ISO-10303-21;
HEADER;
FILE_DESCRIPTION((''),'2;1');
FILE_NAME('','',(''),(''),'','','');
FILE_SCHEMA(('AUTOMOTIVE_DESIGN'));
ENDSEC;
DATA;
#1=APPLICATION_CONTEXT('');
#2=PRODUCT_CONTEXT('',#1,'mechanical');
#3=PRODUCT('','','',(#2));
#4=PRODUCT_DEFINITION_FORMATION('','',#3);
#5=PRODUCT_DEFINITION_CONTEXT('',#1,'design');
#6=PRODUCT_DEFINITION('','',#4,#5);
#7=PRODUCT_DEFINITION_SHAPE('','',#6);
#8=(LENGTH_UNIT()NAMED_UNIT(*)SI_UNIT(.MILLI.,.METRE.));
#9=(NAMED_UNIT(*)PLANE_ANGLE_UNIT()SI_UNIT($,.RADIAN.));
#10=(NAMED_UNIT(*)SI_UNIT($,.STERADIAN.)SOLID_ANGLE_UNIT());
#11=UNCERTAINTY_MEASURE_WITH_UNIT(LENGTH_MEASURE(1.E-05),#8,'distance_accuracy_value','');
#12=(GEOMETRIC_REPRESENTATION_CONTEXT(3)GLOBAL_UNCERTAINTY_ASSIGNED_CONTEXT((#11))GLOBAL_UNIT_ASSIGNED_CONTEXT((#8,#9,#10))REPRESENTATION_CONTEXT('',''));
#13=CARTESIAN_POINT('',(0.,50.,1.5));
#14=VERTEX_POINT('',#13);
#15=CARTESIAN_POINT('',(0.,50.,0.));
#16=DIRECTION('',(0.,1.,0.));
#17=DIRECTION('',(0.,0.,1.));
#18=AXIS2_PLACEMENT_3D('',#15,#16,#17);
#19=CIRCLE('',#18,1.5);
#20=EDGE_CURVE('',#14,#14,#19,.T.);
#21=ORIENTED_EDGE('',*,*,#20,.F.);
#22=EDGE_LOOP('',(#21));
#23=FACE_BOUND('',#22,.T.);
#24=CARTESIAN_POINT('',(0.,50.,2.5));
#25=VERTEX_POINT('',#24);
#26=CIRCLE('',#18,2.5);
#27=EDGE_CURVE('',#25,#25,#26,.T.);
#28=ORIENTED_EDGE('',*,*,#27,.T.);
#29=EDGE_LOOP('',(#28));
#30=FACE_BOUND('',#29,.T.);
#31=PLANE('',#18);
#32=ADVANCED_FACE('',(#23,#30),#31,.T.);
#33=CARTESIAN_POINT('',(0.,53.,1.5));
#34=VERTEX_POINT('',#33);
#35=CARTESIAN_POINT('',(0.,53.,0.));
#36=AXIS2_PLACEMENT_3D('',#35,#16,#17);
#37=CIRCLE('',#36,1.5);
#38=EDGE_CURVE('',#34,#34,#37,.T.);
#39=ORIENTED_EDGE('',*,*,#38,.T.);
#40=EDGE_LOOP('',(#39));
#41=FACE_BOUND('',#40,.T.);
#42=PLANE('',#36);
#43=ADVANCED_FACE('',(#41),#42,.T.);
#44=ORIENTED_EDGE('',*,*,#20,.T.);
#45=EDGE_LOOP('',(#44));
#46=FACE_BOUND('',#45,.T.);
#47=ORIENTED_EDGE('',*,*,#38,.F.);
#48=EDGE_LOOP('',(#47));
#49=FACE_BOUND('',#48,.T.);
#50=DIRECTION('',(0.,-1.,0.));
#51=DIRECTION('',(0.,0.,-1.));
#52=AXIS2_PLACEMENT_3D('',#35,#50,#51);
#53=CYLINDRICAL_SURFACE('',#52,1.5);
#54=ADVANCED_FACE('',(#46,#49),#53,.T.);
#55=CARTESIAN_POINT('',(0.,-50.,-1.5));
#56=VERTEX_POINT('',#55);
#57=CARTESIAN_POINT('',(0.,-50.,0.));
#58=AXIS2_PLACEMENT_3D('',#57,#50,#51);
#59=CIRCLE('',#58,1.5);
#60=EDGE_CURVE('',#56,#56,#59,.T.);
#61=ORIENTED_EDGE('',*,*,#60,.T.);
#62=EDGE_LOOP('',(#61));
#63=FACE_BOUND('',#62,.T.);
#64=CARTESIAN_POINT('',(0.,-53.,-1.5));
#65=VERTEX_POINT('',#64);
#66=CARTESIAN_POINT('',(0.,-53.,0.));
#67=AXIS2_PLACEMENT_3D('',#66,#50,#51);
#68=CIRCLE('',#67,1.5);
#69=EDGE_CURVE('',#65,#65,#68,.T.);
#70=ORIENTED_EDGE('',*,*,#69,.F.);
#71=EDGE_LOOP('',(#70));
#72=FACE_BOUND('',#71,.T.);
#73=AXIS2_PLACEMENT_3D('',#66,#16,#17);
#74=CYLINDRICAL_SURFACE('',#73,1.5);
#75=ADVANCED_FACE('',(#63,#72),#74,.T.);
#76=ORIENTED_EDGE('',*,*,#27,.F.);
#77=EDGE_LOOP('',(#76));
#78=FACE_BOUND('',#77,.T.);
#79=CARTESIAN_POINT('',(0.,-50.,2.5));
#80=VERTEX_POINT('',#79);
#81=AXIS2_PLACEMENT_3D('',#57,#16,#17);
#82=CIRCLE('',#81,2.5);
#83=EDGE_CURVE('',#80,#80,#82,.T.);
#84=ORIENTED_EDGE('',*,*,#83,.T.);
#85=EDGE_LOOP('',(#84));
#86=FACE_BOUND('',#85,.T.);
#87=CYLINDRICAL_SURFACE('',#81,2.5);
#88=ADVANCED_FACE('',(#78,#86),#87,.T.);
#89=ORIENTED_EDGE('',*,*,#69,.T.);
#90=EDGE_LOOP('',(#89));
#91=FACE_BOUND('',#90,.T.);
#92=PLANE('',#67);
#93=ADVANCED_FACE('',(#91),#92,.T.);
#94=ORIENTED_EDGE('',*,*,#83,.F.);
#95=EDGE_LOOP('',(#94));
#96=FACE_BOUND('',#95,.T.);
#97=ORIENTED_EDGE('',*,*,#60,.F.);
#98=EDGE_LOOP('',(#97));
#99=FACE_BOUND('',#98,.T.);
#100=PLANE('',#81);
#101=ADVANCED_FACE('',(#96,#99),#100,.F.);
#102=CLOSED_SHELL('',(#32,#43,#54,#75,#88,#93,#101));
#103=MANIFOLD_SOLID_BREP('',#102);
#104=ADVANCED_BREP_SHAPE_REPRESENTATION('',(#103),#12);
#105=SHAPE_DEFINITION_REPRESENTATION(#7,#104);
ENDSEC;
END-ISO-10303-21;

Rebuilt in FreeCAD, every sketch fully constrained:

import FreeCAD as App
import Part
import Sketcher

V = App.Vector
Q = App.Units.Quantity

doc = App.newDocument("Part")
body = doc.addObject("PartDesign::Body", "Body")

# Sketch on XZ plane
sketch1 = body.newObject("Sketcher::SketchObject", "Sketch")
sketch1.AttachmentSupport = (doc.getObject("XZ_Plane"), [""])
sketch1.MapMode = "FlatFace"
sketch1.addGeometry(Part.Circle(V(0, 0, 0), V(0, 0, 1), 2.5), False)
sketch1.addConstraint([
    Sketcher.Constraint("Coincident", 0, 3, -1, 1),
    Sketcher.Constraint("Diameter", 0, Q("5 mm")),
])
pad1 = body.newObject("PartDesign::Pad", "Pad")
pad1.Profile = sketch1
pad1.Length = 100
pad1.Midplane = True

# Sketch on XZ plane
sketch2 = body.newObject("Sketcher::SketchObject", "Sketch001")
sketch2.AttachmentSupport = (doc.getObject("XZ_Plane"), [""])
sketch2.MapMode = "FlatFace"
sketch2.AttachmentOffset = App.Placement(V(0, 0, -50), App.Rotation())
sketch2.addGeometry(Part.Circle(V(0, 0, 0), V(0, 0, 1), 1.5), False)
sketch2.addConstraint([
    Sketcher.Constraint("Coincident", 0, 3, -1, 1),
    Sketcher.Constraint("Diameter", 0, Q("3 mm")),
])
pad2 = body.newObject("PartDesign::Pad", "Pad001")
pad2.Profile = sketch2
pad2.Length = 3
pad2.Reversed = True

# Sketch on XZ plane
sketch3 = body.newObject("Sketcher::SketchObject", "Sketch002")
sketch3.AttachmentSupport = (doc.getObject("XZ_Plane"), [""])
sketch3.MapMode = "FlatFace"
sketch3.AttachmentOffset = App.Placement(V(0, 0, 53), App.Rotation())
sketch3.addGeometry(Part.Circle(V(0, 0, 0), V(0, 0, 1), 1.5), False)
sketch3.addConstraint([
    Sketcher.Constraint("Coincident", 0, 3, -1, 1),
    Sketcher.Constraint("Diameter", 0, Q("3 mm")),
])
pad3 = body.newObject("PartDesign::Pad", "Pad002")
pad3.Profile = sketch3
pad3.Length = 3
pad3.Reversed = True

doc.recompute()
